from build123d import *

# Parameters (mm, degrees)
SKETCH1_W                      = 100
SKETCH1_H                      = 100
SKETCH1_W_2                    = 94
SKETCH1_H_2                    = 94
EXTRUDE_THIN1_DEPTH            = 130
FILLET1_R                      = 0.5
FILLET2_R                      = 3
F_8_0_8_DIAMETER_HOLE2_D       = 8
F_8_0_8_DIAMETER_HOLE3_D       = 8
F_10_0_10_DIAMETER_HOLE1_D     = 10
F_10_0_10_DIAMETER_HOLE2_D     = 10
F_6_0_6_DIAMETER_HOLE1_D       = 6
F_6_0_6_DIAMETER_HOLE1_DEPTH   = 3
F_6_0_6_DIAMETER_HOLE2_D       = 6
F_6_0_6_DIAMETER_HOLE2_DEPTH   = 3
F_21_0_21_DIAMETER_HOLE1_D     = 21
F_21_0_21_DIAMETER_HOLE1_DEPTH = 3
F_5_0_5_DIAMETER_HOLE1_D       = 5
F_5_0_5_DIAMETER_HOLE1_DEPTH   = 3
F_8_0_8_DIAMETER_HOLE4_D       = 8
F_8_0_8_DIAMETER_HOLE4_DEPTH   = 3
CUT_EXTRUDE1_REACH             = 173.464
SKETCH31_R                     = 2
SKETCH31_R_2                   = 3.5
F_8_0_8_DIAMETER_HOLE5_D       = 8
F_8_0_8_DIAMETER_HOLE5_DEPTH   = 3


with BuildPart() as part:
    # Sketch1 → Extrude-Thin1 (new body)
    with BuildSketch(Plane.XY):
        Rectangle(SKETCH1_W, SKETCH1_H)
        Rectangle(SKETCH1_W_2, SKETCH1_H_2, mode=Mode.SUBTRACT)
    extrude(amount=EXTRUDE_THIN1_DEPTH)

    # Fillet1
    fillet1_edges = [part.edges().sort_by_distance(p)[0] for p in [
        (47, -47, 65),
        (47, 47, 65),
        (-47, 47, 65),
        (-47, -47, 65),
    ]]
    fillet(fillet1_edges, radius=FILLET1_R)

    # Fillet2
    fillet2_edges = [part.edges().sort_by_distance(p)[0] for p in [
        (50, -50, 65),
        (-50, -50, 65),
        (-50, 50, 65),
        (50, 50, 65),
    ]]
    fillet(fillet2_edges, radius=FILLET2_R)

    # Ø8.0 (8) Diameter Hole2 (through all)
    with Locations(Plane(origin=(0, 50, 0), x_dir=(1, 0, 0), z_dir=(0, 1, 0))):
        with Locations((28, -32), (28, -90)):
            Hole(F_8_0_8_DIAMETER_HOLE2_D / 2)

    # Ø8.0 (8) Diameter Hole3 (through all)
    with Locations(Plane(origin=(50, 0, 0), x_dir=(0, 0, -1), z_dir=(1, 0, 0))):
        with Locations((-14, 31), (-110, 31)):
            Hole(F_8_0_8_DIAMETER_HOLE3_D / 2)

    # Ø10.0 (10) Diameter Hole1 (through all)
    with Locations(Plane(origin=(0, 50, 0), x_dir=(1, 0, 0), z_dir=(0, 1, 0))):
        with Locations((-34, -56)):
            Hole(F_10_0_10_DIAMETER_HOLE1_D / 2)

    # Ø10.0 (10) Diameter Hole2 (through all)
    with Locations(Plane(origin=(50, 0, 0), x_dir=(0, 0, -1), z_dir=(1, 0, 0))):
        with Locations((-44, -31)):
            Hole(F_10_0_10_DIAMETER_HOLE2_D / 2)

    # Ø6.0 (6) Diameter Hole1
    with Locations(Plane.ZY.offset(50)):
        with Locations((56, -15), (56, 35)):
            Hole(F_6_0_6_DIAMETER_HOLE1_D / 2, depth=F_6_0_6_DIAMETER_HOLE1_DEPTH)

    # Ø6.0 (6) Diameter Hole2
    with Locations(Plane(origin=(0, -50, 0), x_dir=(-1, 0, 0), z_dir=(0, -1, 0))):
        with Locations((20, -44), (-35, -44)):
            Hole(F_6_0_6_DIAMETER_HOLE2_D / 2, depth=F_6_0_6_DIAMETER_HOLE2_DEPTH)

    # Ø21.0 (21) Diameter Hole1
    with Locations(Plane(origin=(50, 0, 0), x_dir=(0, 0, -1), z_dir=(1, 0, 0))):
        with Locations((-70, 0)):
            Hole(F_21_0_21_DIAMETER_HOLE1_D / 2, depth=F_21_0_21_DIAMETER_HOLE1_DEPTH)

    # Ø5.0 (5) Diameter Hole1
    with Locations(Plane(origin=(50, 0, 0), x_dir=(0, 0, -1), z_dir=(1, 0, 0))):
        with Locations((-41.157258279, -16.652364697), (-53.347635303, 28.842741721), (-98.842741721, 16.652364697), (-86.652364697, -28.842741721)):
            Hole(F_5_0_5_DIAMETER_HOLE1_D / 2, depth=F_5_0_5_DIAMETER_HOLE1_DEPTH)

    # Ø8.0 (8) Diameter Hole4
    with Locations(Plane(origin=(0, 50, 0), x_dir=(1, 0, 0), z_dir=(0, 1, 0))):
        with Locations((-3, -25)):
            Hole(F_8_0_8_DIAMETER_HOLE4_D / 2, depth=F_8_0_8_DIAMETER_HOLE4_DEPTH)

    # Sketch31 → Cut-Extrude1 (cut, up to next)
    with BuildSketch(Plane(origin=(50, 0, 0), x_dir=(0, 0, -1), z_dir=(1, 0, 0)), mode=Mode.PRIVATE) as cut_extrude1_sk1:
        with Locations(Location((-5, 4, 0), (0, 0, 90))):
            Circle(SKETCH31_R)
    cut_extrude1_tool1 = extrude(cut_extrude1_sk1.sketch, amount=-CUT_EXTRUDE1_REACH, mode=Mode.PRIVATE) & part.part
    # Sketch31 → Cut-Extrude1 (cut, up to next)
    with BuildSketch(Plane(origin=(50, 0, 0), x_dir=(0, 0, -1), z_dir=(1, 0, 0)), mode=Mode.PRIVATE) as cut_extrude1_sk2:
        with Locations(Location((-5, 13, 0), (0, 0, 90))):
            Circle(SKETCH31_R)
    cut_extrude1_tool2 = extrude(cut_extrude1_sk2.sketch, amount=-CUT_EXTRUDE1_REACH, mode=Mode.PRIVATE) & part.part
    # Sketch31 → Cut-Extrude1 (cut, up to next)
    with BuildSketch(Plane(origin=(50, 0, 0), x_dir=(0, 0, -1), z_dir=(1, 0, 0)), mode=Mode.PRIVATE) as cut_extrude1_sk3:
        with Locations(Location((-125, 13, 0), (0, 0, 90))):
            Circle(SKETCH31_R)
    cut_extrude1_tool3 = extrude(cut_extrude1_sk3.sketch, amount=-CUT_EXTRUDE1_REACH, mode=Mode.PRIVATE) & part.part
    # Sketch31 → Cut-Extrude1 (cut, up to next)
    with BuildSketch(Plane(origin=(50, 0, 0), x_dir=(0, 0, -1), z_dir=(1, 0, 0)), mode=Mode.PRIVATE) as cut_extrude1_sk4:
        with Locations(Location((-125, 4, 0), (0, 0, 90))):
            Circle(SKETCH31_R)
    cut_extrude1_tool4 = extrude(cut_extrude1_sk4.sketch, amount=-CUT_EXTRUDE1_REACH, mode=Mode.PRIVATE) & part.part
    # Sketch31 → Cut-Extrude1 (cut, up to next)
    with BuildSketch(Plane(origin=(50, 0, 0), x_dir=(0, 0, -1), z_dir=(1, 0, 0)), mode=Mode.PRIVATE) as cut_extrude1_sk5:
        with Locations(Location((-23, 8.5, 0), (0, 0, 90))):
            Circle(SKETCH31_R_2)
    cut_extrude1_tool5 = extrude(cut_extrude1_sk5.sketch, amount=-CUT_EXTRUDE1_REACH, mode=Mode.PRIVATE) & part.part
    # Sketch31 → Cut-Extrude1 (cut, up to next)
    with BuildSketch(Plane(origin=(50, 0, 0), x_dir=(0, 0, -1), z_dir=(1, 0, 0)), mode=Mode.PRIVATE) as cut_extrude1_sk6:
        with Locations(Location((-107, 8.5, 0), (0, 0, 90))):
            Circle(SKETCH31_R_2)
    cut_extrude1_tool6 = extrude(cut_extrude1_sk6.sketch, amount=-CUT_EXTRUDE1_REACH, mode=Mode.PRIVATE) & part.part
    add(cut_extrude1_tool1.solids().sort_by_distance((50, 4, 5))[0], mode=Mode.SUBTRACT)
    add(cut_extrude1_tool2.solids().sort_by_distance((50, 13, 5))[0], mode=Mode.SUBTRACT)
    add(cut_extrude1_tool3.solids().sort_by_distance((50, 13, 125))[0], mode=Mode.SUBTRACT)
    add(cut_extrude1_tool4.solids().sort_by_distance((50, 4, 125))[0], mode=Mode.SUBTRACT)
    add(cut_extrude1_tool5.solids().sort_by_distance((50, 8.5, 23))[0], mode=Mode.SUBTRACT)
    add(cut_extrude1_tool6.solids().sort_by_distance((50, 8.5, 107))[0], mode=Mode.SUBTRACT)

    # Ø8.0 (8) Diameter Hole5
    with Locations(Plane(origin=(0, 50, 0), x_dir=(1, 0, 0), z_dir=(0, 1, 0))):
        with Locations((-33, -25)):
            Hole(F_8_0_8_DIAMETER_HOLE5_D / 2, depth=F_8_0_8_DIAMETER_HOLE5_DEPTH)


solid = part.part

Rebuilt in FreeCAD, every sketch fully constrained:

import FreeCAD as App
import Part
import Sketcher


def edges_at(feature, points):
    """Names of the edges that pass closest to the given points."""
    edges = feature.Shape.Edges
    near = lambda p: min(range(len(edges)), key=lambda i: edges[i].distToShape(Part.Vertex(*p))[0])
    return sorted({f"Edge{near(p) + 1}" for p in points})

doc = App.newDocument("Part")
body = doc.addObject("PartDesign::Body", "Body")

sketch1 = body.newObject("Sketcher::SketchObject", "Sketch")
sketch1.AttachmentSupport = (doc.getObject("XY_Plane"), [""])
sketch1.MapMode = "FlatFace"
sketch1.addGeometry([
    Part.LineSegment(App.Vector(-50, 50, 0), App.Vector(-50, -50, 0)),
    Part.LineSegment(App.Vector(-50, -50, 0), App.Vector(50, -50, 0)),
    Part.LineSegment(App.Vector(50, -50, 0), App.Vector(50, 50, 0)),
    Part.LineSegment(App.Vector(50, 50, 0), App.Vector(-50, 50, 0)),
    Part.LineSegment(App.Vector(47, -47, 0), App.Vector(-47, -47, 0)),
    Part.LineSegment(App.Vector(-47, -47, 0), App.Vector(-47, 47, 0)),
    Part.LineSegment(App.Vector(-47, 47, 0), App.Vector(47, 47, 0)),
    Part.LineSegment(App.Vector(47, 47, 0), App.Vector(47, -47, 0)),
], False)
sketch1.addConstraint([
    Sketcher.Constraint("Coincident", 0, 2, 1, 1),
    Sketcher.Constraint("Coincident", 1, 2, 2, 1),
    Sketcher.Constraint("Coincident", 2, 2, 3, 1),
    Sketcher.Constraint("Coincident", 3, 2, 0, 1),
    Sketcher.Constraint("Coincident", 4, 2, 5, 1),
    Sketcher.Constraint("Coincident", 5, 2, 6, 1),
    Sketcher.Constraint("Coincident", 6, 2, 7, 1),
    Sketcher.Constraint("Coincident", 7, 2, 4, 1),
    Sketcher.Constraint("Vertical", 0),
    Sketcher.Constraint("Horizontal", 1),
    Sketcher.Constraint("Vertical", 2),
    Sketcher.Constraint("Horizontal", 3),
    Sketcher.Constraint("Horizontal", 4),
    Sketcher.Constraint("Vertical", 5),
    Sketcher.Constraint("Horizontal", 6),
    Sketcher.Constraint("Vertical", 7),
    Sketcher.Constraint("Symmetric", 0, 2, 2, 2, -1, 1),
    Sketcher.Constraint("Symmetric", 4, 2, 6, 2, -1, 1),
    Sketcher.Constraint("Equal", 3, 0),
    Sketcher.Constraint("Equal", 6, 5),
    Sketcher.Constraint("DistanceX", 1, 1, 1, 2, 100.0),
    Sketcher.Constraint("DistanceX", 4, 2, 4, 1, 94.0),
])
pad1 = body.newObject("PartDesign::Pad", "Pad")
pad1.Profile = sketch1
pad1.Length = 130
doc.recompute()

fillet = body.newObject("PartDesign::Fillet", "Fillet")
fillet.Base = (pad1, edges_at(pad1, [
    (47, -47, 65),
    (47, 47, 65),
    (-47, 47, 65),
    (-47, -47, 65),
]))
fillet.Radius = 0.5
doc.recompute()

fillet2 = body.newObject("PartDesign::Fillet", "Fillet001")
fillet2.Base = (fillet, edges_at(fillet, [
    (50, -50, 65),
    (-50, -50, 65),
    (-50, 50, 65),
    (50, 50, 65),
]))
fillet2.Radius = 3

sketch2 = body.newObject("Sketcher::SketchObject", "Sketch001")
sketch2.AttachmentSupport = (doc.getObject("XZ_Plane"), [""])
sketch2.MapMode = "FlatFace"
sketch2.AttachmentOffset = App.Placement(App.Vector(0, 0, -50), App.Rotation())
sketch2.addGeometry([
    Part.Circle(App.Vector(28, 32, 0), App.Vector(0, 0, 1), 4),
    Part.Circle(App.Vector(28, 90, 0), App.Vector(0, 0, 1), 4),
], False)
sketch2.addConstraint([
    Sketcher.Constraint("Equal", 0, 1),
    Sketcher.Constraint("Vertical", 0, 3, 1, 3),
    Sketcher.Constraint("Diameter", 0, 8.0),
    Sketcher.Constraint("DistanceX", -1, 1, 0, 3, 28.0),
    Sketcher.Constraint("DistanceY", -1, 1, 0, 3, 32.0),
    Sketcher.Constraint("DistanceY", -1, 1, 1, 3, 90.0),
])
doc.recompute()
hole = body.newObject("PartDesign::Hole", "Hole")
hole.Profile = sketch2
hole.ThreadType = "None"
hole.Diameter = 8
hole.DepthType = "ThroughAll"
hole.Reversed = True

sketch3 = body.newObject("Sketcher::SketchObject", "Sketch002")
sketch3.AttachmentSupport = (doc.getObject("YZ_Plane"), [""])
sketch3.MapMode = "FlatFace"
sketch3.AttachmentOffset = App.Placement(App.Vector(0, 0, 50), App.Rotation())
sketch3.addGeometry([
    Part.Circle(App.Vector(31, 14, 0), App.Vector(0, 0, 1), 4),
    Part.Circle(App.Vector(31, 110, 0), App.Vector(0, 0, 1), 4),
], False)
sketch3.addConstraint([
    Sketcher.Constraint("Equal", 0, 1),
    Sketcher.Constraint("Vertical", 0, 3, 1, 3),
    Sketcher.Constraint("Diameter", 0, 8.0),
    Sketcher.Constraint("DistanceX", -1, 1, 0, 3, 31.0),
    Sketcher.Constraint("DistanceY", -1, 1, 0, 3, 14.0),
    Sketcher.Constraint("DistanceY", -1, 1, 1, 3, 110.0),
])
doc.recompute()
hole2 = body.newObject("PartDesign::Hole", "Hole001")
hole2.Profile = sketch3
hole2.ThreadType = "None"
hole2.Diameter = 8
hole2.DepthType = "ThroughAll"

sketch4 = body.newObject("Sketcher::SketchObject", "Sketch003")
sketch4.AttachmentSupport = (doc.getObject("XZ_Plane"), [""])
sketch4.MapMode = "FlatFace"
sketch4.AttachmentOffset = App.Placement(App.Vector(0, 0, -50), App.Rotation())
sketch4.addGeometry(Part.Circle(App.Vector(-34, 56, 0), App.Vector(0, 0, 1), 5), False)
sketch4.addConstraint([
    Sketcher.Constraint("Diameter", 0, 10.0),
    Sketcher.Constraint("DistanceX", 0, 3, -1, 1, 34.0),
    Sketcher.Constraint("DistanceY", -1, 1, 0, 3, 56.0),
])
doc.recompute()
hole3 = body.newObject("PartDesign::Hole", "Hole002")
hole3.Profile = sketch4
hole3.ThreadType = "None"
hole3.Diameter = 10
hole3.DepthType = "ThroughAll"
hole3.Reversed = True

sketch5 = body.newObject("Sketcher::SketchObject", "Sketch004")
sketch5.AttachmentSupport = (doc.getObject("YZ_Plane"), [""])
sketch5.MapMode = "FlatFace"
sketch5.AttachmentOffset = App.Placement(App.Vector(0, 0, 50), App.Rotation())
sketch5.addGeometry(Part.Circle(App.Vector(-31, 44, 0), App.Vector(0, 0, 1), 5), False)
sketch5.addConstraint([
    Sketcher.Constraint("Diameter", 0, 10.0),
    Sketcher.Constraint("DistanceX", 0, 3, -1, 1, 31.0),
    Sketcher.Constraint("DistanceY", -1, 1, 0, 3, 44.0),
])
doc.recompute()
hole4 = body.newObject("PartDesign::Hole", "Hole003")
hole4.Profile = sketch5
hole4.ThreadType = "None"
hole4.Diameter = 10
hole4.DepthType = "ThroughAll"

sketch6 = body.newObject("Sketcher::SketchObject", "Sketch005")
sketch6.AttachmentSupport = (doc.getObject("YZ_Plane"), [""])
sketch6.MapMode = "FlatFace"
sketch6.AttachmentOffset = App.Placement(App.Vector(0, 0, -50), App.Rotation())
sketch6.addGeometry([
    Part.Circle(App.Vector(-15, 56, 0), App.Vector(0, 0, 1), 3),
    Part.Circle(App.Vector(35, 56, 0), App.Vector(0, 0, 1), 3),
], False)
sketch6.addConstraint([
    Sketcher.Constraint("Equal", 0, 1),
    Sketcher.Constraint("Horizontal", 0, 3, 1, 3),
    Sketcher.Constraint("Diameter", 0, 6.0),
    Sketcher.Constraint("DistanceX", 0, 3, -1, 1, 15.0),
    Sketcher.Constraint("DistanceY", -1, 1, 0, 3, 56.0),
    Sketcher.Constraint("DistanceX", -1, 1, 1, 3, 35.0),
])
doc.recompute()
hole5 = body.newObject("PartDesign::Hole", "Hole004")
hole5.Profile = sketch6
hole5.ThreadType = "None"
hole5.Diameter = 6
hole5.DepthType = "Dimension"
hole5.Depth = 3
hole5.DrillPoint = "Flat"
hole5.Reversed = True

sketch7 = body.newObject("Sketcher::SketchObject", "Sketch006")
sketch7.AttachmentSupport = (doc.getObject("XZ_Plane"), [""])
sketch7.MapMode = "FlatFace"
sketch7.AttachmentOffset = App.Placement(App.Vector(0, 0, 50), App.Rotation())
sketch7.addGeometry([
    Part.Circle(App.Vector(-20, 44, 0), App.Vector(0, 0, 1), 3),
    Part.Circle(App.Vector(35, 44, 0), App.Vector(0, 0, 1), 3),
], False)
sketch7.addConstraint([
    Sketcher.Constraint("Equal", 0, 1),
    Sketcher.Constraint("Horizontal", 0, 3, 1, 3),
    Sketcher.Constraint("Diameter", 0, 6.0),
    Sketcher.Constraint("DistanceX", 0, 3, -1, 1, 20.0),
    Sketcher.Constraint("DistanceY", -1, 1, 0, 3, 44.0),
    Sketcher.Constraint("DistanceX", -1, 1, 1, 3, 35.0),
])
doc.recompute()
hole6 = body.newObject("PartDesign::Hole", "Hole005")
hole6.Profile = sketch7
hole6.ThreadType = "None"
hole6.Diameter = 6
hole6.DepthType = "Dimension"
hole6.Depth = 3
hole6.DrillPoint = "Flat"

sketch8 = body.newObject("Sketcher::SketchObject", "Sketch007")
sketch8.AttachmentSupport = (doc.getObject("YZ_Plane"), [""])
sketch8.MapMode = "FlatFace"
sketch8.AttachmentOffset = App.Placement(App.Vector(0, 0, 50), App.Rotation())
sketch8.addGeometry(Part.Circle(App.Vector(0, 70, 0), App.Vector(0, 0, 1), 10), False)
sketch8.addConstraint([
    Sketcher.Constraint("PointOnObject", 0, 3, -2),
    Sketcher.Constraint("Diameter", 0, 21.0),
    Sketcher.Constraint("DistanceY", -1, 1, 0, 3, 70.0),
])
doc.recompute()
hole7 = body.newObject("PartDesign::Hole", "Hole006")
hole7.Profile = sketch8
hole7.ThreadType = "None"
hole7.Diameter = 21
hole7.DepthType = "Dimension"
hole7.Depth = 3
hole7.DrillPoint = "Flat"

sketch9 = body.newObject("Sketcher::SketchObject", "Sketch008")
sketch9.AttachmentSupport = (doc.getObject("YZ_Plane"), [""])
sketch9.MapMode = "FlatFace"
sketch9.AttachmentOffset = App.Placement(App.Vector(0, 0, 50), App.Rotation())
sketch9.addGeometry([
    Part.Circle(App.Vector(-16.7, 41.2, 0), App.Vector(0, 0, 1), 2.5),
    Part.Circle(App.Vector(28.8, 53.3, 0), App.Vector(0, 0, 1), 2.5),
    Part.Circle(App.Vector(16.7, 98.8, 0), App.Vector(0, 0, 1), 2.5),
    Part.Circle(App.Vector(-28.8, 86.7, 0), App.Vector(0, 0, 1), 2.5),
], False)
sketch9.addConstraint([
    Sketcher.Constraint("Equal", 0, 1),
    Sketcher.Constraint("Equal", 1, 2),
    Sketcher.Constraint("Equal", 2, 3),
    Sketcher.Constraint("Diameter", 0, 5.0),
    Sketcher.Constraint("DistanceY", -1, 1, 0, 3, 41.157258),
    Sketcher.Constraint("DistanceX", -1, 1, 1, 3, 28.842742),
    Sketcher.Constraint("DistanceY", -1, 1, 2, 3, 98.842742),
    Sketcher.Constraint("DistanceX", 3, 3, -1, 1, 28.842742),
    Sketcher.Constraint("DistanceX", 0, 3, 2, 3, 33.304729),
    Sketcher.Constraint("DistanceY", 1, 3, 3, 3, 33.304729),
    Sketcher.Constraint("DistanceX", 0, 3, -1, 1, 16.652365),
    Sketcher.Constraint("DistanceY", -1, 1, 1, 3, 53.347635),
])
doc.recompute()
hole8 = body.newObject("PartDesign::Hole", "Hole007")
hole8.Profile = sketch9
hole8.ThreadType = "None"
hole8.Diameter = 5
hole8.DepthType = "Dimension"
hole8.Depth = 3
hole8.DrillPoint = "Flat"

sketch10 = body.newObject("Sketcher::SketchObject", "Sketch009")
sketch10.AttachmentSupport = (doc.getObject("XZ_Plane"), [""])
sketch10.MapMode = "FlatFace"
sketch10.AttachmentOffset = App.Placement(App.Vector(0, 0, -50), App.Rotation())
sketch10.addGeometry(Part.Circle(App.Vector(-3, 25, 0), App.Vector(0, 0, 1), 4), False)
sketch10.addConstraint([
    Sketcher.Constraint("Diameter", 0, 8.0),
    Sketcher.Constraint("DistanceX", 0, 3, -1, 1, 3.0),
    Sketcher.Constraint("DistanceY", -1, 1, 0, 3, 25.0),
])
doc.recompute()
hole9 = body.newObject("PartDesign::Hole", "Hole008")
hole9.Profile = sketch10
hole9.ThreadType = "None"
hole9.Diameter = 8
hole9.DepthType = "Dimension"
hole9.Depth = 3
hole9.DrillPoint = "Flat"
hole9.Reversed = True

sketch11 = body.newObject("Sketcher::SketchObject", "Sketch010")
sketch11.AttachmentSupport = (doc.getObject("YZ_Plane"), [""])
sketch11.MapMode = "FlatFace"
sketch11.AttachmentOffset = App.Placement(App.Vector(0, 0, 50), App.Rotation())
sketch11.addGeometry(Part.Circle(App.Vector(4, 5, 0), App.Vector(0, 0, 1), 2), False)
sketch11.addConstraint([
    Sketcher.Constraint("Diameter", 0, 4.0),
    Sketcher.Constraint("DistanceX", -1, 1, 0, 3, 4.0),
    Sketcher.Constraint("DistanceY", -1, 1, 0, 3, 5.0),
])
pocket1 = body.newObject("PartDesign::Pocket", "Pocket")
pocket1.Profile = sketch11
pocket1.Type = "UpToFirst"

sketch12 = body.newObject("Sketcher::SketchObject", "Sketch011")
sketch12.AttachmentSupport = (doc.getObject("YZ_Plane"), [""])
sketch12.MapMode = "FlatFace"
sketch12.AttachmentOffset = App.Placement(App.Vector(0, 0, 50), App.Rotation())
sketch12.addGeometry(Part.Circle(App.Vector(13, 5, 0), App.Vector(0, 0, 1), 2), False)
sketch12.addConstraint([
    Sketcher.Constraint("Diameter", 0, 4.0),
    Sketcher.Constraint("DistanceX", -1, 1, 0, 3, 13.0),
    Sketcher.Constraint("DistanceY", -1, 1, 0, 3, 5.0),
])
pocket2 = body.newObject("PartDesign::Pocket", "Pocket001")
pocket2.Profile = sketch12
pocket2.Type = "UpToFirst"

sketch13 = body.newObject("Sketcher::SketchObject", "Sketch012")
sketch13.AttachmentSupport = (doc.getObject("YZ_Plane"), [""])
sketch13.MapMode = "FlatFace"
sketch13.AttachmentOffset = App.Placement(App.Vector(0, 0, 50), App.Rotation())
sketch13.addGeometry(Part.Circle(App.Vector(13, 125, 0), App.Vector(0, 0, 1), 2), False)
sketch13.addConstraint([
    Sketcher.Constraint("Diameter", 0, 4.0),
    Sketcher.Constraint("DistanceX", -1, 1, 0, 3, 13.0),
    Sketcher.Constraint("DistanceY", -1, 1, 0, 3, 125.0),
])
pocket3 = body.newObject("PartDesign::Pocket", "Pocket002")
pocket3.Profile = sketch13
pocket3.Type = "UpToFirst"

sketch14 = body.newObject("Sketcher::SketchObject", "Sketch013")
sketch14.AttachmentSupport = (doc.getObject("YZ_Plane"), [""])
sketch14.MapMode = "FlatFace"
sketch14.AttachmentOffset = App.Placement(App.Vector(0, 0, 50), App.Rotation())
sketch14.addGeometry(Part.Circle(App.Vector(4, 125, 0), App.Vector(0, 0, 1), 2), False)
sketch14.addConstraint([
    Sketcher.Constraint("Diameter", 0, 4.0),
    Sketcher.Constraint("DistanceX", -1, 1, 0, 3, 4.0),
    Sketcher.Constraint("DistanceY", -1, 1, 0, 3, 125.0),
])
pocket4 = body.newObject("PartDesign::Pocket", "Pocket003")
pocket4.Profile = sketch14
pocket4.Type = "UpToFirst"

sketch15 = body.newObject("Sketcher::SketchObject", "Sketch014")
sketch15.AttachmentSupport = (doc.getObject("YZ_Plane"), [""])
sketch15.MapMode = "FlatFace"
sketch15.AttachmentOffset = App.Placement(App.Vector(0, 0, 50), App.Rotation())
sketch15.addGeometry(Part.Circle(App.Vector(8.5, 23, 0), App.Vector(0, 0, 1), 3.5), False)
sketch15.addConstraint([
    Sketcher.Constraint("Diameter", 0, 7.0),
    Sketcher.Constraint("DistanceY", -1, 1, 0, 3, 23.0),
    Sketcher.Constraint("DistanceX", -1, 1, 0, 3, 8.5),
])
pocket5 = body.newObject("PartDesign::Pocket", "Pocket004")
pocket5.Profile = sketch15
pocket5.Type = "UpToFirst"

sketch16 = body.newObject("Sketcher::SketchObject", "Sketch015")
sketch16.AttachmentSupport = (doc.getObject("YZ_Plane"), [""])
sketch16.MapMode = "FlatFace"
sketch16.AttachmentOffset = App.Placement(App.Vector(0, 0, 50), App.Rotation())
sketch16.addGeometry(Part.Circle(App.Vector(8.5, 107, 0), App.Vector(0, 0, 1), 3.5), False)
sketch16.addConstraint([
    Sketcher.Constraint("Diameter", 0, 7.0),
    Sketcher.Constraint("DistanceY", -1, 1, 0, 3, 107.0),
    Sketcher.Constraint("DistanceX", -1, 1, 0, 3, 8.5),
])
pocket6 = body.newObject("PartDesign::Pocket", "Pocket005")
pocket6.Profile = sketch16
pocket6.Type = "UpToFirst"

sketch17 = body.newObject("Sketcher::SketchObject", "Sketch016")
sketch17.AttachmentSupport = (doc.getObject("XZ_Plane"), [""])
sketch17.MapMode = "FlatFace"
sketch17.AttachmentOffset = App.Placement(App.Vector(0, 0, -50), App.Rotation())
sketch17.addGeometry(Part.Circle(App.Vector(-33, 25, 0), App.Vector(0, 0, 1), 4), False)
sketch17.addConstraint([
    Sketcher.Constraint("Diameter", 0, 8.0),
    Sketcher.Constraint("DistanceX", 0, 3, -1, 1, 33.0),
    Sketcher.Constraint("DistanceY", -1, 1, 0, 3, 25.0),
])
doc.recompute()
hole10 = body.newObject("PartDesign::Hole", "Hole009")
hole10.Profile = sketch17
hole10.ThreadType = "None"
hole10.Diameter = 8
hole10.DepthType = "Dimension"
hole10.Depth = 3
hole10.DrillPoint = "Flat"
hole10.Reversed = True

doc.recompute()
